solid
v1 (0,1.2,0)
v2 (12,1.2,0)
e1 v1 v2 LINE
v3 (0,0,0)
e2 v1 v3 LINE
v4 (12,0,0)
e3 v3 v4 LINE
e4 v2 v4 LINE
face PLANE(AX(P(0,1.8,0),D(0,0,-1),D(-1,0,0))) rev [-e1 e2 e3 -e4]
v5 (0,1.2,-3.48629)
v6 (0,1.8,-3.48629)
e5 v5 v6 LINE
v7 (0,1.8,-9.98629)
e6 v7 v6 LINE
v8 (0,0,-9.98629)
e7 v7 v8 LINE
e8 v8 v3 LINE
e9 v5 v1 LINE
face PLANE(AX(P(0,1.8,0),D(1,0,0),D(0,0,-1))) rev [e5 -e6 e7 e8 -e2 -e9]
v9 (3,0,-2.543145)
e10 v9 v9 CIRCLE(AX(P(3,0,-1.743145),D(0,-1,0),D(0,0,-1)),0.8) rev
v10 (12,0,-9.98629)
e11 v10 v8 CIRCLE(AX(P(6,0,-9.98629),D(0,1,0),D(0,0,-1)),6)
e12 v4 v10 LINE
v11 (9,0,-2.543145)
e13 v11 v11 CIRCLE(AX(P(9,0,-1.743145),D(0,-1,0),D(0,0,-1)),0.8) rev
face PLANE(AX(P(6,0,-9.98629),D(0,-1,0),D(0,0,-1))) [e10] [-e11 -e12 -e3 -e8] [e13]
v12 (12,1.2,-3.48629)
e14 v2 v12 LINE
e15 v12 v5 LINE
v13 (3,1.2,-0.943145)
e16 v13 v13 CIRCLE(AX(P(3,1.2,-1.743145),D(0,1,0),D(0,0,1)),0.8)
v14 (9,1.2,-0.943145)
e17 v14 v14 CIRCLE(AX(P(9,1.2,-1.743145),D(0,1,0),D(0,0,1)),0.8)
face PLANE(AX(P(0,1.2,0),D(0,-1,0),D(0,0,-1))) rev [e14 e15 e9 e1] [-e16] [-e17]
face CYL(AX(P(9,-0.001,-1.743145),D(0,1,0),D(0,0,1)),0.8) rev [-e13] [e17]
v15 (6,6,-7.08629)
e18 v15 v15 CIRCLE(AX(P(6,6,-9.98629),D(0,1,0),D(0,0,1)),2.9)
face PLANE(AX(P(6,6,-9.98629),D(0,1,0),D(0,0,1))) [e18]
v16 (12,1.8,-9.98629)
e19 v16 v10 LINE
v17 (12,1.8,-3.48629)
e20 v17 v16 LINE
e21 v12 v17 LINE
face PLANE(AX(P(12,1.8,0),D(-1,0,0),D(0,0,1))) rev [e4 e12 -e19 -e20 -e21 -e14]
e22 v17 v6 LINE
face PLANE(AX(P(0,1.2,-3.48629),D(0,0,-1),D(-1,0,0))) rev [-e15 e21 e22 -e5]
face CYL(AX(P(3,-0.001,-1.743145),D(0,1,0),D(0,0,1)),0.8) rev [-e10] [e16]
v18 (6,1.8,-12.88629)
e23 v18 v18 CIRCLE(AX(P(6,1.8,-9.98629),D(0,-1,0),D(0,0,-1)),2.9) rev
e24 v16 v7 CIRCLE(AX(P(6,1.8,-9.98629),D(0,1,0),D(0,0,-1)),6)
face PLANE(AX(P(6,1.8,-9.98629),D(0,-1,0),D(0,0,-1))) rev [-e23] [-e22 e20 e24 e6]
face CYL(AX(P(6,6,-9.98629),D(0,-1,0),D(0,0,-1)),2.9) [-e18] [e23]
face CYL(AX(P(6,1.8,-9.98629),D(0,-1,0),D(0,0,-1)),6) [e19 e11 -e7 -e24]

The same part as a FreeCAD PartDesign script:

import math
import FreeCAD as App
import Part
import Sketcher

V = App.Vector


def add_polygon(sketch, points):
    """Adds a closed chain of lines whose ends are joined by coincident constraints."""
    first, n = sketch.GeometryCount, len(points)
    for a, b in zip(points, points[1:] + points[:1]):
        sketch.addGeometry(Part.LineSegment(App.Vector(*a, 0), App.Vector(*b, 0)), False)
    for i in range(n):
        sketch.addConstraint(Sketcher.Constraint("Coincident", first + i, 2, first + (i + 1) % n, 1))

doc = App.newDocument("Part")
body = doc.addObject("PartDesign::Body", "Body")

# Sketch on XZ plane
sketch1 = body.newObject("Sketcher::SketchObject", "Sketch")
sketch1.AttachmentSupport = (doc.getObject("XZ_Plane"), [""])
sketch1.MapMode = "FlatFace"
sketch1.addGeometry([
    Part.LineSegment(V(0, -9.98629, 0), V(0, 0, 0)),
    Part.LineSegment(V(0, 0, 0), V(12, 0, 0)),
    Part.LineSegment(V(12, 0, 0), V(12, -9.98629, 0)),
    Part.ArcOfCircle(Part.Circle(V(6, -9.98629, 0), V(0, 0, 1), 6), math.radians(180), math.radians(360)),
], False)
sketch1.addConstraint([
    Sketcher.Constraint("Coincident", 0, 2, 1, 1),
    Sketcher.Constraint("Coincident", 1, 2, 2, 1),
    Sketcher.Constraint("Tangent", 2, 2, 3, 2),
    Sketcher.Constraint("Tangent", 3, 1, 0, 1),
    Sketcher.Constraint("Vertical", 0),
    Sketcher.Constraint("Horizontal", 1),
    Sketcher.Constraint("Vertical", 2),
    Sketcher.Constraint("Coincident", 0, 2, -1, 1),
    Sketcher.Constraint("Radius", 3, 6.0),
    Sketcher.Constraint("DistanceY", 0, 1, 0, 2, 9.98629),
])
pad1 = body.newObject("PartDesign::Pad", "Pad")
pad1.Profile = sketch1
pad1.Length = 1.8
pad1.Reversed = True

# Sketch on XZ plane
sketch2 = body.newObject("Sketcher::SketchObject", "Sketch001")
sketch2.AttachmentSupport = (doc.getObject("XZ_Plane"), [""])
sketch2.MapMode = "FlatFace"
sketch2.AttachmentOffset = App.Placement(V(0, 0, -1.8), App.Rotation())
add_polygon(sketch2, [(0, -3.48629), (0, 0), (12, 0), (12, -3.48629)])  # lines 0-3
sketch2.addConstraint([
    Sketcher.Constraint("Vertical", 0),
    Sketcher.Constraint("Horizontal", 1),
    Sketcher.Constraint("Vertical", 2),
    Sketcher.Constraint("Horizontal", 3),
    Sketcher.Constraint("Coincident", 0, 2, -1, 1),
    Sketcher.Constraint("DistanceX", 1, 1, 1, 2, 12.0),
    Sketcher.Constraint("DistanceY", 0, 1, 0, 2, 3.48629),
])
pocket1 = body.newObject("PartDesign::Pocket", "Pocket")
pocket1.Profile = sketch2
pocket1.Length = 0.6
pocket1.Reversed = True

# Sketch on XZ plane
sketch3 = body.newObject("Sketcher::SketchObject", "Sketch002")
sketch3.AttachmentSupport = (doc.getObject("XZ_Plane"), [""])
sketch3.MapMode = "FlatFace"
sketch3.AttachmentOffset = App.Placement(V(0, 0, -1.8), App.Rotation())
sketch3.addGeometry(Part.Circle(V(6, -9.98629, 0), V(0, 0, 1), 2.9), False)
sketch3.addConstraint([
    Sketcher.Constraint("Diameter", 0, 5.8),
    Sketcher.Constraint("DistanceX", -1, 1, 0, 3, 6.0),
    Sketcher.Constraint("DistanceY", 0, 3, -1, 1, 9.98629),
])
pad2 = body.newObject("PartDesign::Pad", "Pad001")
pad2.Profile = sketch3
pad2.Length = 4.2
pad2.Reversed = True

# Sketch on XZ plane
sketch4 = body.newObject("Sketcher::SketchObject", "Sketch003")
sketch4.AttachmentSupport = (doc.getObject("XZ_Plane"), [""])
sketch4.MapMode = "FlatFace"
sketch4.AttachmentOffset = App.Placement(V(0, 0, -1.2), App.Rotation())
sketch4.addGeometry(Part.Circle(V(3, -1.743145, 0), V(0, 0, 1), 0.8), False)
sketch4.addConstraint([
    Sketcher.Constraint("Diameter", 0, 1.6),
    Sketcher.Constraint("DistanceX", -1, 1, 0, 3, 3.0),
    Sketcher.Constraint("DistanceY", 0, 3, -1, 1, 1.743145),
])
pocket2 = body.newObject("PartDesign::Pocket", "Pocket001")
pocket2.Profile = sketch4
pocket2.Type = "UpToFirst"
pocket2.Reversed = True

# Sketch on XZ plane
sketch5 = body.newObject("Sketcher::SketchObject", "Sketch004")
sketch5.AttachmentSupport = (doc.getObject("XZ_Plane"), [""])
sketch5.MapMode = "FlatFace"
sketch5.AttachmentOffset = App.Placement(V(0, 0, -1.2), App.Rotation())
sketch5.addGeometry(Part.Circle(V(9, -1.743145, 0), V(0, 0, 1), 0.8), False)
sketch5.addConstraint([
    Sketcher.Constraint("Diameter", 0, 1.6),
    Sketcher.Constraint("DistanceX", -1, 1, 0, 3, 9.0),
    Sketcher.Constraint("DistanceY", 0, 3, -1, 1, 1.743145),
])
pocket3 = body.newObject("PartDesign::Pocket", "Pocket002")
pocket3.Profile = sketch5
pocket3.Type = "UpToFirst"
pocket3.Reversed = True

doc.recompute()
